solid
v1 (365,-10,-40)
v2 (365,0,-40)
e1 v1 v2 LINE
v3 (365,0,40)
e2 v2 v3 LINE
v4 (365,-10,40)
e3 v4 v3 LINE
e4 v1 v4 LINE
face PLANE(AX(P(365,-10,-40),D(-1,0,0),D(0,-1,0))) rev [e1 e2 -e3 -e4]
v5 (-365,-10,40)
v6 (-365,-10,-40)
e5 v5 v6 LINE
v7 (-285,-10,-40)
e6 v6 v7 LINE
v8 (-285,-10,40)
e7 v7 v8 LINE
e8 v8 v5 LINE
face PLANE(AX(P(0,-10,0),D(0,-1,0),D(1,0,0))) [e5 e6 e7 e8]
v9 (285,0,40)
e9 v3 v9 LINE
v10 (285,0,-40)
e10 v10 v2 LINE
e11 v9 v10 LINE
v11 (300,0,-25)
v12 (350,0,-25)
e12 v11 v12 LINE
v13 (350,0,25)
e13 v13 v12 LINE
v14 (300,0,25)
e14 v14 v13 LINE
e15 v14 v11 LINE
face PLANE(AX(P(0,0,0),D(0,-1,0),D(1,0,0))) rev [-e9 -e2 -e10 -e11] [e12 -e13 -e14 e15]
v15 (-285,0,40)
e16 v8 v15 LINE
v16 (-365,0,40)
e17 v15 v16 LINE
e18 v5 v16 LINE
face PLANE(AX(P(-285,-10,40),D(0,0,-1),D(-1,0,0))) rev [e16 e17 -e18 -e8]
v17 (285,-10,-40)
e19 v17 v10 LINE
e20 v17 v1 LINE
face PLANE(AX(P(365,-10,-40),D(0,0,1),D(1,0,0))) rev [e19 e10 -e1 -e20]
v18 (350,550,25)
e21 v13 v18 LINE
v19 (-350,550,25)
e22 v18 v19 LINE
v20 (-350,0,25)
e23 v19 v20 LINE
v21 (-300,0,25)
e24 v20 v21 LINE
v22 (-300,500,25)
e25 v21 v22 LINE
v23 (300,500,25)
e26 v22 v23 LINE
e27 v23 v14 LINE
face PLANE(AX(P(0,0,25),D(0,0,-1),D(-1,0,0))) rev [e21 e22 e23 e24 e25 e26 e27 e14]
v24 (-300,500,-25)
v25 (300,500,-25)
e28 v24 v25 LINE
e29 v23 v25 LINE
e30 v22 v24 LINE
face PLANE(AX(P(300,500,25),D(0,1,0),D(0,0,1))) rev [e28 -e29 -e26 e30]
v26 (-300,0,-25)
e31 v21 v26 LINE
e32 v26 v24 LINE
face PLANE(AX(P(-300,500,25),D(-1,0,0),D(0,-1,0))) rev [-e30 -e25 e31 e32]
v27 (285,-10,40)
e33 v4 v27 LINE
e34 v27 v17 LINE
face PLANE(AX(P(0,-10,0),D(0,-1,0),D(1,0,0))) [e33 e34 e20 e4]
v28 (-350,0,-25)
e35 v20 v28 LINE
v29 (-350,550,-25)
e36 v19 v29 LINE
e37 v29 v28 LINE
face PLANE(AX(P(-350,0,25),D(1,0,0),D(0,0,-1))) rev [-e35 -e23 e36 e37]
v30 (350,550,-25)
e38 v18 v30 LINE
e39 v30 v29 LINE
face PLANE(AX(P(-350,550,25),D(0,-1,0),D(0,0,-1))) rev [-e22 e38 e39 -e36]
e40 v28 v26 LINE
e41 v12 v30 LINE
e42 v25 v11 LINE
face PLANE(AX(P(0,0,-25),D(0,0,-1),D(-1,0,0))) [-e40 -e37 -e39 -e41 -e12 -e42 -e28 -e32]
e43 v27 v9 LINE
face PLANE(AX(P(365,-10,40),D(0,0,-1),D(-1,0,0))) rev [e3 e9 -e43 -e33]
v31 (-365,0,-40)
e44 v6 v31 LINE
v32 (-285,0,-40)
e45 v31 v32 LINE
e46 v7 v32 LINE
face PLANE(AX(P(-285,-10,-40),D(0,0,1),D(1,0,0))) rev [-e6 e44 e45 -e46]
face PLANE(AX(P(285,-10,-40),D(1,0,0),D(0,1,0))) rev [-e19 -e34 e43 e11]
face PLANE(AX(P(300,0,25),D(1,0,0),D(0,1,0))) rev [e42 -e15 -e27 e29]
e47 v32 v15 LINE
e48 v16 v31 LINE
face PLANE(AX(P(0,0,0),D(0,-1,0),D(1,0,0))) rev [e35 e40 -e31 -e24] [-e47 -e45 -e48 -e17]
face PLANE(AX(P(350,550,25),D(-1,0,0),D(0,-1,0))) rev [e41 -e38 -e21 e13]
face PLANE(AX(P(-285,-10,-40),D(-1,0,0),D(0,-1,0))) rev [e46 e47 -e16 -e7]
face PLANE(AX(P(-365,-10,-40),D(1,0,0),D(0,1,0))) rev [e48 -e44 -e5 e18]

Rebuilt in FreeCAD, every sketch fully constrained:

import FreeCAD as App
import Part
import Sketcher
from FreeCAD import Vector

doc = App.newDocument("Part")
body = doc.addObject("PartDesign::Body", "Body")

# Sketch on XY plane
sketch1 = body.newObject("Sketcher::SketchObject", "Sketch")
sketch1.AttachmentSupport = (doc.getObject("XY_Plane"), [""])
sketch1.MapMode = "FlatFace"
sketch1.addGeometry(Part.LineSegment(Vector(-350, 550, 0), Vector(-350, 0, 0)), False)
sketch1.addGeometry(Part.LineSegment(Vector(-350, 0, 0), Vector(-300, 0, 0)), False)
sketch1.addGeometry(Part.LineSegment(Vector(-300, 0, 0), Vector(-300, 500, 0)), False)
sketch1.addGeometry(Part.LineSegment(Vector(-300, 500, 0), Vector(300, 500, 0)), False)
sketch1.addGeometry(Part.LineSegment(Vector(300, 500, 0), Vector(300, 0, 0)), False)
sketch1.addGeometry(Part.LineSegment(Vector(300, 0, 0), Vector(350, 0, 0)), False)
sketch1.addGeometry(Part.LineSegment(Vector(350, 0, 0), Vector(350, 550, 0)), False)
sketch1.addGeometry(Part.LineSegment(Vector(350, 550, 0), Vector(-350, 550, 0)), False)
sketch1.addConstraint(Sketcher.Constraint("Coincident", 0, 2, 1, 1))
sketch1.addConstraint(Sketcher.Constraint("Coincident", 1, 2, 2, 1))
sketch1.addConstraint(Sketcher.Constraint("Coincident", 2, 2, 3, 1))
sketch1.addConstraint(Sketcher.Constraint("Coincident", 3, 2, 4, 1))
sketch1.addConstraint(Sketcher.Constraint("Coincident", 4, 2, 5, 1))
sketch1.addConstraint(Sketcher.Constraint("Coincident", 5, 2, 6, 1))
sketch1.addConstraint(Sketcher.Constraint("Coincident", 6, 2, 7, 1))
sketch1.addConstraint(Sketcher.Constraint("Coincident", 7, 2, 0, 1))
sketch1.addConstraint(Sketcher.Constraint("Vertical", 0))
sketch1.addConstraint(Sketcher.Constraint("Horizontal", 1))
sketch1.addConstraint(Sketcher.Constraint("Vertical", 2))
sketch1.addConstraint(Sketcher.Constraint("Horizontal", 3))
sketch1.addConstraint(Sketcher.Constraint("Vertical", 4))
sketch1.addConstraint(Sketcher.Constraint("Horizontal", 5))
sketch1.addConstraint(Sketcher.Constraint("Vertical", 6))
sketch1.addConstraint(Sketcher.Constraint("Horizontal", 7))
sketch1.addConstraint(Sketcher.Constraint("Symmetric", 1, 2, 4, 2, -1, 1))
sketch1.addConstraint(Sketcher.Constraint("Symmetric", 0, 2, 5, 2, -2))
sketch1.addConstraint(Sketcher.Constraint("DistanceX", 1, 1, 1, 2, 50.0))
sketch1.addConstraint(Sketcher.Constraint("DistanceX", 3, 1, 3, 2, 600.0))
sketch1.addConstraint(Sketcher.Constraint("DistanceY", 0, 2, 0, 1, 550.0))
sketch1.addConstraint(Sketcher.Constraint("DistanceY", 2, 1, 2, 2, 500.0))
pad1 = body.newObject("PartDesign::Pad", "Pad")
pad1.Profile = sketch1
pad1.Length = 50
pad1.Midplane = True

# Sketch on XZ plane
sketch2 = body.newObject("Sketcher::SketchObject", "Sketch001")
sketch2.AttachmentSupport = (doc.getObject("XZ_Plane"), [""])
sketch2.MapMode = "FlatFace"
sketch2.addGeometry(Part.LineSegment(Vector(-365, 40, 0), Vector(-365, -40, 0)), False)
sketch2.addGeometry(Part.LineSegment(Vector(-365, -40, 0), Vector(-285, -40, 0)), False)
sketch2.addGeometry(Part.LineSegment(Vector(-285, -40, 0), Vector(-285, 40, 0)), False)
sketch2.addGeometry(Part.LineSegment(Vector(-285, 40, 0), Vector(-365, 40, 0)), False)
sketch2.addGeometry(Part.LineSegment(Vector(285, 40, 0), Vector(285, -40, 0)), False)
sketch2.addGeometry(Part.LineSegment(Vector(285, -40, 0), Vector(365, -40, 0)), False)
sketch2.addGeometry(Part.LineSegment(Vector(365, -40, 0), Vector(365, 40, 0)), False)
sketch2.addGeometry(Part.LineSegment(Vector(365, 40, 0), Vector(285, 40, 0)), False)
sketch2.addConstraint(Sketcher.Constraint("Coincident", 0, 2, 1, 1))
sketch2.addConstraint(Sketcher.Constraint("Coincident", 1, 2, 2, 1))
sketch2.addConstraint(Sketcher.Constraint("Coincident", 2, 2, 3, 1))
sketch2.addConstraint(Sketcher.Constraint("Coincident", 3, 2, 0, 1))
sketch2.addConstraint(Sketcher.Constraint("Coincident", 4, 2, 5, 1))
sketch2.addConstraint(Sketcher.Constraint("Coincident", 5, 2, 6, 1))
sketch2.addConstraint(Sketcher.Constraint("Coincident", 6, 2, 7, 1))
sketch2.addConstraint(Sketcher.Constraint("Coincident", 7, 2, 4, 1))
sketch2.addConstraint(Sketcher.Constraint("Vertical", 0))
sketch2.addConstraint(Sketcher.Constraint("Horizontal", 1))
sketch2.addConstraint(Sketcher.Constraint("Vertical", 2))
sketch2.addConstraint(Sketcher.Constraint("Horizontal", 3))
sketch2.addConstraint(Sketcher.Constraint("Vertical", 4))
sketch2.addConstraint(Sketcher.Constraint("Horizontal", 5))
sketch2.addConstraint(Sketcher.Constraint("Vertical", 6))
sketch2.addConstraint(Sketcher.Constraint("Horizontal", 7))
sketch2.addConstraint(Sketcher.Constraint("Symmetric", 2, 2, 4, 2, -1, 1))
sketch2.addConstraint(Sketcher.Constraint("Symmetric", 0, 2, 6, 2, -1, 1))
sketch2.addConstraint(Sketcher.Constraint("Horizontal", 1, 2, 4, 2))
sketch2.addConstraint(Sketcher.Constraint("Equal", 7, 0))
sketch2.addConstraint(Sketcher.Constraint("DistanceX", 1, 1, 1, 2, 80.0))
sketch2.addConstraint(Sketcher.Constraint("DistanceX", 0, 2, -1, 1, 365.0))
pad2 = body.newObject("PartDesign::Pad", "Pad001")
pad2.Profile = sketch2
pad2.Length = 10

doc.recompute()
